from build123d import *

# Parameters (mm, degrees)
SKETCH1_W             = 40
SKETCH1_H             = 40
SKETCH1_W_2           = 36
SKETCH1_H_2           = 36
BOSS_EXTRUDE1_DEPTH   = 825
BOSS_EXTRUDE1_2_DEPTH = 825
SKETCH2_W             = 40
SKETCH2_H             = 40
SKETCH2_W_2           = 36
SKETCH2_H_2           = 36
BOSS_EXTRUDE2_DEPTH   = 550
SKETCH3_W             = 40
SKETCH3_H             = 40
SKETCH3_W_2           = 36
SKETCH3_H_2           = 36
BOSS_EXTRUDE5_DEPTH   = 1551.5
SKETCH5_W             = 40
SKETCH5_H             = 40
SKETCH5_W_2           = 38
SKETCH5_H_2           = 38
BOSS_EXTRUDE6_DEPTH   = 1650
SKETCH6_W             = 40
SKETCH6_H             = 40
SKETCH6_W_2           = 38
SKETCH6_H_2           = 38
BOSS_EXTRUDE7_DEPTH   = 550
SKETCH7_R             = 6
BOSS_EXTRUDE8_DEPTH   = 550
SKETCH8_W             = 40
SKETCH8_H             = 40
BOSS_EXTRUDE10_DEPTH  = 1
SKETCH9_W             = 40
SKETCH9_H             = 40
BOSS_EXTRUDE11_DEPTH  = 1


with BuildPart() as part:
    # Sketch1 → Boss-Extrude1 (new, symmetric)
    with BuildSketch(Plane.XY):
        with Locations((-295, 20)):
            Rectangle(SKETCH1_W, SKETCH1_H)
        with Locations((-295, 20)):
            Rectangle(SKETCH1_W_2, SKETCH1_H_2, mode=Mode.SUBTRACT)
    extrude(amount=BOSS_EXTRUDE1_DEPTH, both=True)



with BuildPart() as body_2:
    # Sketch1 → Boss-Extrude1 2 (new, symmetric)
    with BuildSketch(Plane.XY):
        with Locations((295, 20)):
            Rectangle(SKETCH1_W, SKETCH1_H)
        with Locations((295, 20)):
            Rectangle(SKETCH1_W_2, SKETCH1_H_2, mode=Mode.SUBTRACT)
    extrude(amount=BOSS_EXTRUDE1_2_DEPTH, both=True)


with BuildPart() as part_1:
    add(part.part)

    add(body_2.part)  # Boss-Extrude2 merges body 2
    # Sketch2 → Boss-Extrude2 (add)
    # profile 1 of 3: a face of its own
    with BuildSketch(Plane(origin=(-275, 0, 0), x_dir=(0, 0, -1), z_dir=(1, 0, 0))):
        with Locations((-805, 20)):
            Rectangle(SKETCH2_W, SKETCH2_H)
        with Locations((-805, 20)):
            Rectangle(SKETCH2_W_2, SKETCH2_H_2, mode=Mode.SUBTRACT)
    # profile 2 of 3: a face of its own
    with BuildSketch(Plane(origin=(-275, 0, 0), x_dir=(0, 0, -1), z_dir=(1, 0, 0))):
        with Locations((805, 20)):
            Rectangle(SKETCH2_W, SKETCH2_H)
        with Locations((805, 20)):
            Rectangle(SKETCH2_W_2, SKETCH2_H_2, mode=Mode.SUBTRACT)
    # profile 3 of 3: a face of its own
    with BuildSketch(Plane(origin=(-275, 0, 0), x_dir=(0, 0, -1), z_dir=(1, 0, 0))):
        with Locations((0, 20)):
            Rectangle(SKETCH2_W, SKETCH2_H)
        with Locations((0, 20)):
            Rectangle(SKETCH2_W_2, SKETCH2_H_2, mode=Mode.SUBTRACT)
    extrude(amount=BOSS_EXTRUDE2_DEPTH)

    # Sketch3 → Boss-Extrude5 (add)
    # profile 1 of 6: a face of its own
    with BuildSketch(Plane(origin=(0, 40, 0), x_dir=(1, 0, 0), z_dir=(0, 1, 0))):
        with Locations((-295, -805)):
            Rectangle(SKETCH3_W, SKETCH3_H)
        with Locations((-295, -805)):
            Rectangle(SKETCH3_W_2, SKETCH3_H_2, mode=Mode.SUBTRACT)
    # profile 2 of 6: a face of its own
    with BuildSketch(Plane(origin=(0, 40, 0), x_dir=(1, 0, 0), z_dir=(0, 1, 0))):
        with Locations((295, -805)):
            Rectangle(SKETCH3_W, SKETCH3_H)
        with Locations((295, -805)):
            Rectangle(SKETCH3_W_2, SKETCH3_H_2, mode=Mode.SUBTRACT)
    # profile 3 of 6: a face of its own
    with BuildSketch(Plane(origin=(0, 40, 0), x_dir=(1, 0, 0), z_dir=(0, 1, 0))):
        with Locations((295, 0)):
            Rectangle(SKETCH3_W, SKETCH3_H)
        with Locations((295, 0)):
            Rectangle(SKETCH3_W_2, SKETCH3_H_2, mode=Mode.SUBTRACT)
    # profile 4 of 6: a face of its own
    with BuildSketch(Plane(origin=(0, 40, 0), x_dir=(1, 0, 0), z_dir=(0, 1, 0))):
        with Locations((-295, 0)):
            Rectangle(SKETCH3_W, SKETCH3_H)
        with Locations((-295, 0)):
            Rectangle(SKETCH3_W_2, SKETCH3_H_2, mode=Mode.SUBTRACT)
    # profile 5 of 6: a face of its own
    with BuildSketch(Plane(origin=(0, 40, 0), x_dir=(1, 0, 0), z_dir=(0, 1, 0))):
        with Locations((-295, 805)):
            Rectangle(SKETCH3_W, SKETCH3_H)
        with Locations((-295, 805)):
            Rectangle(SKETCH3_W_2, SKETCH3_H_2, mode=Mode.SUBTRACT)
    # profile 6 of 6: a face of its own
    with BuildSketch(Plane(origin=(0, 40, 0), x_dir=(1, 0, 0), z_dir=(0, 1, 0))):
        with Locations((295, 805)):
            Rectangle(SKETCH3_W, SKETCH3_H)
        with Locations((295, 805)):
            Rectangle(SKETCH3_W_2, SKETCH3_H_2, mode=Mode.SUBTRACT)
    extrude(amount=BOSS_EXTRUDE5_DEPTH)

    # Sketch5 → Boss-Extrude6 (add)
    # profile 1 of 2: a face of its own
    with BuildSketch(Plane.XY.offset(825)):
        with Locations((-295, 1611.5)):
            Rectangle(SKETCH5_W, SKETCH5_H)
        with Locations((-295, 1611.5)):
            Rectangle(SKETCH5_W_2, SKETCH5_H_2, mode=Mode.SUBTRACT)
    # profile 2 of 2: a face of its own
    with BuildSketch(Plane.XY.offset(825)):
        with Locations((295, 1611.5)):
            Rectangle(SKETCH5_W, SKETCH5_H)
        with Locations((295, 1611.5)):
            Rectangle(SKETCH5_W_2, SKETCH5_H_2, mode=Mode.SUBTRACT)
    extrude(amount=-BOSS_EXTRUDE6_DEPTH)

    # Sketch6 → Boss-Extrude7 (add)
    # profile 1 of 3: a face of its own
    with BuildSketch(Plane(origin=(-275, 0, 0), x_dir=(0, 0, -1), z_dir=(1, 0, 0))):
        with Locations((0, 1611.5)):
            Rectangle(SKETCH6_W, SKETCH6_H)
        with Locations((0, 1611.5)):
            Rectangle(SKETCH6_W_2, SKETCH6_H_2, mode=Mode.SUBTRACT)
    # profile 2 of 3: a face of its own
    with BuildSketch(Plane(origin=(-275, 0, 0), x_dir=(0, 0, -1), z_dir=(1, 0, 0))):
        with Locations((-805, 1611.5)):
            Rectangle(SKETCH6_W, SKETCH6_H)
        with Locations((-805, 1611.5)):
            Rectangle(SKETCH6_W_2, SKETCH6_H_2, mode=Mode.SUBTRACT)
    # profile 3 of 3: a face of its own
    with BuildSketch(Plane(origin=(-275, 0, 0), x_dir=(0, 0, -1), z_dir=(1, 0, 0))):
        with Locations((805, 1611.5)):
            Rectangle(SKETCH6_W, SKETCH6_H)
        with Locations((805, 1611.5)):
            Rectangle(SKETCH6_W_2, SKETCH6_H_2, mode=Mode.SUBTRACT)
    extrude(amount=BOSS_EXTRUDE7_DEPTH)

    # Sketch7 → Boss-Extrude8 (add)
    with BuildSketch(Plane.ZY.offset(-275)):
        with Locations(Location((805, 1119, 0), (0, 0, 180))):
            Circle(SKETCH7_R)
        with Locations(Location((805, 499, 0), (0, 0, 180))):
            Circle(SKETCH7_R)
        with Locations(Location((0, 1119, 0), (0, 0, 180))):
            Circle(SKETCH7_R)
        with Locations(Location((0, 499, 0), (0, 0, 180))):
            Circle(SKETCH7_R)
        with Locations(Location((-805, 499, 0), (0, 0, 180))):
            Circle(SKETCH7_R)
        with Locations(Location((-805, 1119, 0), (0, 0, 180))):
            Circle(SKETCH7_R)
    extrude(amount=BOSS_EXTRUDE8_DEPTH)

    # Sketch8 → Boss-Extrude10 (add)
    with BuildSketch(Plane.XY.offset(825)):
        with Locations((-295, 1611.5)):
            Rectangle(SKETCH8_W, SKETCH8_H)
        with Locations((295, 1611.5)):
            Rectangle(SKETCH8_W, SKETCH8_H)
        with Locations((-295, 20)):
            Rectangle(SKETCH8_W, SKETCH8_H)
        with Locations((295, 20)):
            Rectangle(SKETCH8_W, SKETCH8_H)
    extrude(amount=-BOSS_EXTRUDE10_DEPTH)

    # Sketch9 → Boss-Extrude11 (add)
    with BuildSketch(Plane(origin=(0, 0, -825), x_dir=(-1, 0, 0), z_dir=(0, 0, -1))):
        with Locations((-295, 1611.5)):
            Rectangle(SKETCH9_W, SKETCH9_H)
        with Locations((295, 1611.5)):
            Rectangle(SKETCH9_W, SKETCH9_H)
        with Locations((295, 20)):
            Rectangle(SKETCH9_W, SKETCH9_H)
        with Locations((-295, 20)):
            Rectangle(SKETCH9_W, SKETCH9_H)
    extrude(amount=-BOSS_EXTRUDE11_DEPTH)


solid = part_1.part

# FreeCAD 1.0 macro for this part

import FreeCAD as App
import Part
import Sketcher
from FreeCAD import Vector
Q = App.Units.Quantity

doc = App.newDocument("Part")
params = doc.addObject("Spreadsheet::Sheet", "Params")
for row, (alias, value) in enumerate([
    ("sketch1_width", "40 mm"),
    ("sketch1_width2", "36 mm"),
    ("pad1_length", "1650 mm"),
    ("sketch2_width", "40 mm"),
    ("sketch2_width2", "36 mm"),
    ("pad2_length", "1650 mm"),
    ("sketch3_width", "40 mm"),
    ("sketch3_width2", "36 mm"),
    ("pad3_length", "550 mm"),
    ("sketch4_width", "40 mm"),
    ("sketch4_width2", "36 mm"),
    ("pad4_length", "1551.5 mm"),
    ("sketch5_width", "40 mm"),
    ("sketch5_width2", "38 mm"),
    ("pad5_length", "1650 mm"),
    ("sketch6_width", "40 mm"),
    ("sketch6_width2", "38 mm"),
    ("pad6_length", "550 mm"),
    ("sketch7_diameter", "12 mm"),
    ("pad7_length", "550 mm"),
    ("sketch8_width", "40 mm"),
    ("pad8_length", "1 mm"),
    ("sketch9_width", "40 mm"),
    ("pad9_length", "1 mm"),
], start=1):
    params.set(f"A{row}", alias)
    params.set(f"B{row}", "=" + value)
    params.setAlias(f"B{row}", alias)

body = doc.addObject("PartDesign::Body", "Body")

# Sketch on XY plane
sketch1 = doc.addObject("Sketcher::SketchObject", "Sketch")
body.addObject(sketch1)
sketch1.AttachmentSupport = (doc.XY_Plane, [""])
sketch1.MapMode = "FlatFace"
sketch1.addGeometry([
    Part.LineSegment(Vector(-315, 40, 0), Vector(-315, 0, 0)),  # 0
    Part.LineSegment(Vector(-315, 0, 0), Vector(-275, 0, 0)),  # 1
    Part.LineSegment(Vector(-275, 0, 0), Vector(-275, 40, 0)),  # 2
    Part.LineSegment(Vector(-275, 40, 0), Vector(-315, 40, 0)),  # 3
    Part.LineSegment(Vector(-277, 2, 0), Vector(-313, 2, 0)),  # 4
    Part.LineSegment(Vector(-313, 2, 0), Vector(-313, 38, 0)),  # 5
    Part.LineSegment(Vector(-313, 38, 0), Vector(-277, 38, 0)),  # 6
    Part.LineSegment(Vector(-277, 38, 0), Vector(-277, 2, 0)),  # 7
], False)
sketch1.addConstraint([
    Sketcher.Constraint("Coincident", 0, 2, 1, 1),
    Sketcher.Constraint("Coincident", 1, 2, 2, 1),
    Sketcher.Constraint("Coincident", 2, 2, 3, 1),
    Sketcher.Constraint("Coincident", 3, 2, 0, 1),
    Sketcher.Constraint("Coincident", 4, 2, 5, 1),
    Sketcher.Constraint("Coincident", 5, 2, 6, 1),
    Sketcher.Constraint("Coincident", 6, 2, 7, 1),
    Sketcher.Constraint("Coincident", 7, 2, 4, 1),
    Sketcher.Constraint("Vertical", 0),
    Sketcher.Constraint("Horizontal", 1),
    Sketcher.Constraint("Vertical", 2),
    Sketcher.Constraint("Horizontal", 3),
    Sketcher.Constraint("Horizontal", 4),
    Sketcher.Constraint("Vertical", 5),
    Sketcher.Constraint("Horizontal", 6),
    Sketcher.Constraint("Vertical", 7),
    Sketcher.Constraint("PointOnObject", 0, 2, -1),
    Sketcher.Constraint("Equal", 3, 0),
    Sketcher.Constraint("Equal", 6, 5),
    Sketcher.Constraint("DistanceX", 1, 1, 1, 2, Q("40 mm")),
    Sketcher.Constraint("DistanceX", 4, 2, 4, 1, Q("36 mm")),
    Sketcher.Constraint("DistanceX", 0, 2, -1, 1, Q("315 mm")),
    Sketcher.Constraint("DistanceX", 4, 2, -1, 1, Q("313 mm")),
    Sketcher.Constraint("DistanceY", -1, 1, 4, 2, Q("2 mm")),
])
sketch1.setExpression("Constraints[19]", "Params.sketch1_width")
sketch1.setExpression("Constraints[20]", "Params.sketch1_width2")
pad1 = doc.addObject("PartDesign::Pad", "Pad")
body.addObject(pad1)
pad1.Profile = sketch1
pad1.setExpression("Length", "Params.pad1_length")
pad1.Midplane = True
body2 = doc.addObject("PartDesign::Body", "Body001")

# Sketch on XY plane
sketch2 = doc.addObject("Sketcher::SketchObject", "Sketch001")
body2.addObject(sketch2)
sketch2.AttachmentSupport = (doc.getObject("XY_Plane001"), [""])
sketch2.MapMode = "FlatFace"
sketch2.addGeometry([
    Part.LineSegment(Vector(275, 40, 0), Vector(275, 0, 0)),  # 0
    Part.LineSegment(Vector(275, 0, 0), Vector(315, 0, 0)),  # 1
    Part.LineSegment(Vector(315, 0, 0), Vector(315, 40, 0)),  # 2
    Part.LineSegment(Vector(315, 40, 0), Vector(275, 40, 0)),  # 3
    Part.LineSegment(Vector(313, 2, 0), Vector(277, 2, 0)),  # 4
    Part.LineSegment(Vector(277, 2, 0), Vector(277, 38, 0)),  # 5
    Part.LineSegment(Vector(277, 38, 0), Vector(313, 38, 0)),  # 6
    Part.LineSegment(Vector(313, 38, 0), Vector(313, 2, 0)),  # 7
], False)
sketch2.addConstraint([
    Sketcher.Constraint("Coincident", 0, 2, 1, 1),
    Sketcher.Constraint("Coincident", 1, 2, 2, 1),
    Sketcher.Constraint("Coincident", 2, 2, 3, 1),
    Sketcher.Constraint("Coincident", 3, 2, 0, 1),
    Sketcher.Constraint("Coincident", 4, 2, 5, 1),
    Sketcher.Constraint("Coincident", 5, 2, 6, 1),
    Sketcher.Constraint("Coincident", 6, 2, 7, 1),
    Sketcher.Constraint("Coincident", 7, 2, 4, 1),
    Sketcher.Constraint("Vertical", 0),
    Sketcher.Constraint("Horizontal", 1),
    Sketcher.Constraint("Vertical", 2),
    Sketcher.Constraint("Horizontal", 3),
    Sketcher.Constraint("Horizontal", 4),
    Sketcher.Constraint("Vertical", 5),
    Sketcher.Constraint("Horizontal", 6),
    Sketcher.Constraint("Vertical", 7),
    Sketcher.Constraint("PointOnObject", 0, 2, -1),
    Sketcher.Constraint("Equal", 3, 0),
    Sketcher.Constraint("Equal", 6, 5),
    Sketcher.Constraint("DistanceX", 1, 1, 1, 2, Q("40 mm")),
    Sketcher.Constraint("DistanceX", 4, 2, 4, 1, Q("36 mm")),
    Sketcher.Constraint("DistanceX", -1, 1, 0, 2, Q("275 mm")),
    Sketcher.Constraint("DistanceX", -1, 1, 4, 2, Q("277 mm")),
    Sketcher.Constraint("DistanceY", -1, 1, 4, 2, Q("2 mm")),
])
sketch2.setExpression("Constraints[19]", "Params.sketch2_width")
sketch2.setExpression("Constraints[20]", "Params.sketch2_width2")
pad2 = doc.addObject("PartDesign::Pad", "Pad001")
body2.addObject(pad2)
pad2.Profile = sketch2
pad2.setExpression("Length", "Params.pad2_length")
pad2.Midplane = True
body.AllowCompound = True
doc.recompute()

boolean = doc.addObject("PartDesign::Boolean", "Boolean")
body.addObject(boolean)
boolean.Type = "Fuse"
boolean.addObjects([body2])

# Sketch on YZ plane
sketch3 = doc.addObject("Sketcher::SketchObject", "Sketch002")
body.addObject(sketch3)
sketch3.AttachmentSupport = (doc.YZ_Plane, [""])
sketch3.MapMode = "FlatFace"
sketch3.AttachmentOffset = App.Placement(Vector(0, 0, -275), App.Rotation())
sketch3.addGeometry([
    Part.LineSegment(Vector(40, 825, 0), Vector(0, 825, 0)),  # 0
    Part.LineSegment(Vector(0, 825, 0), Vector(0, 785, 0)),  # 1
    Part.LineSegment(Vector(0, 785, 0), Vector(40, 785, 0)),  # 2
    Part.LineSegment(Vector(40, 785, 0), Vector(40, 825, 0)),  # 3
    Part.LineSegment(Vector(2, 787, 0), Vector(2, 823, 0)),  # 4
    Part.LineSegment(Vector(2, 823, 0), Vector(38, 823, 0)),  # 5
    Part.LineSegment(Vector(38, 823, 0), Vector(38, 787, 0)),  # 6
    Part.LineSegment(Vector(38, 787, 0), Vector(2, 787, 0)),  # 7
    Part.LineSegment(Vector(40, -785, 0), Vector(0, -785, 0)),  # 8
    Part.LineSegment(Vector(0, -785, 0), Vector(0, -825, 0)),  # 9
    Part.LineSegment(Vector(0, -825, 0), Vector(40, -825, 0)),  # 10
    Part.LineSegment(Vector(40, -825, 0), Vector(40, -785, 0)),  # 11
    Part.LineSegment(Vector(2, -823, 0), Vector(2, -787, 0)),  # 12
    Part.LineSegment(Vector(2, -787, 0), Vector(38, -787, 0)),  # 13
    Part.LineSegment(Vector(38, -787, 0), Vector(38, -823, 0)),  # 14
    Part.LineSegment(Vector(38, -823, 0), Vector(2, -823, 0)),  # 15
    Part.LineSegment(Vector(40, 20, 0), Vector(0, 20, 0)),  # 16
    Part.LineSegment(Vector(0, 20, 0), Vector(0, -20, 0)),  # 17
    Part.LineSegment(Vector(0, -20, 0), Vector(40, -20, 0)),  # 18
    Part.LineSegment(Vector(40, -20, 0), Vector(40, 20, 0)),  # 19
    Part.LineSegment(Vector(2, -18, 0), Vector(2, 18, 0)),  # 20
    Part.LineSegment(Vector(2, 18, 0), Vector(38, 18, 0)),  # 21
    Part.LineSegment(Vector(38, 18, 0), Vector(38, -18, 0)),  # 22
    Part.LineSegment(Vector(38, -18, 0), Vector(2, -18, 0)),  # 23
], False)
sketch3.addConstraint([
    Sketcher.Constraint("Coincident", 0, 2, 1, 1),
    Sketcher.Constraint("Coincident", 1, 2, 2, 1),
    Sketcher.Constraint("Coincident", 2, 2, 3, 1),
    Sketcher.Constraint("Coincident", 3, 2, 0, 1),
    Sketcher.Constraint("Coincident", 4, 2, 5, 1),
    Sketcher.Constraint("Coincident", 5, 2, 6, 1),
    Sketcher.Constraint("Coincident", 6, 2, 7, 1),
    Sketcher.Constraint("Coincident", 7, 2, 4, 1),
    Sketcher.Constraint("Coincident", 8, 2, 9, 1),
    Sketcher.Constraint("Coincident", 9, 2, 10, 1),
    Sketcher.Constraint("Coincident", 10, 2, 11, 1),
    Sketcher.Constraint("Coincident", 11, 2, 8, 1),
    Sketcher.Constraint("Coincident", 12, 2, 13, 1),
    Sketcher.Constraint("Coincident", 13, 2, 14, 1),
    Sketcher.Constraint("Coincident", 14, 2, 15, 1),
    Sketcher.Constraint("Coincident", 15, 2, 12, 1),
    Sketcher.Constraint("Coincident", 16, 2, 17, 1),
    Sketcher.Constraint("Coincident", 17, 2, 18, 1),
    Sketcher.Constraint("Coincident", 18, 2, 19, 1),
    Sketcher.Constraint("Coincident", 19, 2, 16, 1),
    Sketcher.Constraint("Coincident", 20, 2, 21, 1),
    Sketcher.Constraint("Coincident", 21, 2, 22, 1),
    Sketcher.Constraint("Coincident", 22, 2, 23, 1),
    Sketcher.Constraint("Coincident", 23, 2, 20, 1),
    Sketcher.Constraint("Horizontal", 0),
    Sketcher.Constraint("Vertical", 1),
    Sketcher.Constraint("Horizontal", 2),
    Sketcher.Constraint("Vertical", 3),
    Sketcher.Constraint("Vertical", 4),
    Sketcher.Constraint("Horizontal", 5),
    Sketcher.Constraint("Vertical", 6),
    Sketcher.Constraint("Horizontal", 7),
    Sketcher.Constraint("Horizontal", 8),
    Sketcher.Constraint("Vertical", 9),
    Sketcher.Constraint("Horizontal", 10),
    Sketcher.Constraint("Vertical", 11),
    Sketcher.Constraint("Vertical", 12),
    Sketcher.Constraint("Horizontal", 13),
    Sketcher.Constraint("Vertical", 14),
    Sketcher.Constraint("Horizontal", 15),
    Sketcher.Constraint("Horizontal", 16),
    Sketcher.Constraint("Vertical", 17),
    Sketcher.Constraint("Horizontal", 18),
    Sketcher.Constraint("Vertical", 19),
    Sketcher.Constraint("Vertical", 20),
    Sketcher.Constraint("Horizontal", 21),
    Sketcher.Constraint("Vertical", 22),
    Sketcher.Constraint("Horizontal", 23),
    Sketcher.Constraint("Symmetric", 1, 2, 8, 2, -1, 1),
    Sketcher.Constraint("Symmetric", 16, 2, 17, 2, -1, 1),
    Sketcher.Constraint("Symmetric", 0, 2, 9, 2, -1),
    Sketcher.Constraint("Symmetric", 7, 2, 12, 2, -1),
    Sketcher.Constraint("Symmetric", 5, 2, 14, 2, -1),
    Sketcher.Constraint("Vertical", 3, 2, 10, 2),
    Sketcher.Constraint("Vertical", 11, 2, 18, 2),
    Sketcher.Constraint("Vertical", 15, 2, 20, 2),
    Sketcher.Constraint("Vertical", 14, 2, 21, 2),
    Sketcher.Constraint("Equal", 18, 1),
    Sketcher.Constraint("Equal", 23, 4),
    Sketcher.Constraint("Equal", 11, 17),
    Sketcher.Constraint("Equal", 14, 20),
    Sketcher.Constraint("DistanceX", 0, 2, 0, 1, Q("40 mm")),
    Sketcher.Constraint("DistanceX", 5, 1, 5, 2, Q("36 mm")),
    Sketcher.Constraint("DistanceY", -1, 1, 0, 2, Q("825 mm")),
    Sketcher.Constraint("DistanceX", -1, 1, 4, 2, Q("2 mm")),
    Sketcher.Constraint("DistanceY", -1, 1, 4, 2, Q("823 mm")),
    Sketcher.Constraint("DistanceY", -1, 1, 20, 2, Q("18 mm")),
])
sketch3.setExpression("Constraints[61]", "Params.sketch3_width")
sketch3.setExpression("Constraints[62]", "Params.sketch3_width2")
pad3 = doc.addObject("PartDesign::Pad", "Pad002")
body.addObject(pad3)
pad3.Profile = sketch3
pad3.setExpression("Length", "Params.pad3_length")

# Sketch on XZ plane
sketch4 = doc.addObject("Sketcher::SketchObject", "Sketch003")
body.addObject(sketch4)
sketch4.AttachmentSupport = (doc.XZ_Plane, [""])
sketch4.MapMode = "FlatFace"
sketch4.AttachmentOffset = App.Placement(Vector(0, 0, -40), App.Rotation())
sketch4.addGeometry([
    Part.LineSegment(Vector(-315, 785, 0), Vector(-315, 825, 0)),  # 0
    Part.LineSegment(Vector(-315, 825, 0), Vector(-275, 825, 0)),  # 1
    Part.LineSegment(Vector(-275, 825, 0), Vector(-275, 785, 0)),  # 2
    Part.LineSegment(Vector(-275, 785, 0), Vector(-315, 785, 0)),  # 3
    Part.LineSegment(Vector(-277, 823, 0), Vector(-313, 823, 0)),  # 4
    Part.LineSegment(Vector(-313, 823, 0), Vector(-313, 787, 0)),  # 5
    Part.LineSegment(Vector(-313, 787, 0), Vector(-277, 787, 0)),  # 6
    Part.LineSegment(Vector(-277, 787, 0), Vector(-277, 823, 0)),  # 7
    Part.LineSegment(Vector(275, 785, 0), Vector(275, 825, 0)),  # 8
    Part.LineSegment(Vector(275, 825, 0), Vector(315, 825, 0)),  # 9
    Part.LineSegment(Vector(315, 825, 0), Vector(315, 785, 0)),  # 10
    Part.LineSegment(Vector(315, 785, 0), Vector(275, 785, 0)),  # 11
    Part.LineSegment(Vector(313, 823, 0), Vector(277, 823, 0)),  # 12
    Part.LineSegment(Vector(277, 823, 0), Vector(277, 787, 0)),  # 13
    Part.LineSegment(Vector(277, 787, 0), Vector(313, 787, 0)),  # 14
    Part.LineSegment(Vector(313, 787, 0), Vector(313, 823, 0)),  # 15
    Part.LineSegment(Vector(275, -20, 0), Vector(275, 20, 0)),  # 16
    Part.LineSegment(Vector(275, 20, 0), Vector(315, 20, 0)),  # 17
    Part.LineSegment(Vector(315, 20, 0), Vector(315, -20, 0)),  # 18
    Part.LineSegment(Vector(315, -20, 0), Vector(275, -20, 0)),  # 19
    Part.LineSegment(Vector(313, 18, 0), Vector(277, 18, 0)),  # 20
    Part.LineSegment(Vector(277, 18, 0), Vector(277, -18, 0)),  # 21
    Part.LineSegment(Vector(277, -18, 0), Vector(313, -18, 0)),  # 22
    Part.LineSegment(Vector(313, -18, 0), Vector(313, 18, 0)),  # 23
    Part.LineSegment(Vector(-315, -20, 0), Vector(-315, 20, 0)),  # 24
    Part.LineSegment(Vector(-315, 20, 0), Vector(-275, 20, 0)),  # 25
    Part.LineSegment(Vector(-275, 20, 0), Vector(-275, -20, 0)),  # 26
    Part.LineSegment(Vector(-275, -20, 0), Vector(-315, -20, 0)),  # 27
    Part.LineSegment(Vector(-277, 18, 0), Vector(-313, 18, 0)),  # 28
    Part.LineSegment(Vector(-313, 18, 0), Vector(-313, -18, 0)),  # 29
    Part.LineSegment(Vector(-313, -18, 0), Vector(-277, -18, 0)),  # 30
    Part.LineSegment(Vector(-277, -18, 0), Vector(-277, 18, 0)),  # 31
    Part.LineSegment(Vector(-315, -825, 0), Vector(-315, -785, 0)),  # 32
    Part.LineSegment(Vector(-315, -785, 0), Vector(-275, -785, 0)),  # 33
    Part.LineSegment(Vector(-275, -785, 0), Vector(-275, -825, 0)),  # 34
    Part.LineSegment(Vector(-275, -825, 0), Vector(-315, -825, 0)),  # 35
    Part.LineSegment(Vector(-277, -787, 0), Vector(-313, -787, 0)),  # 36
    Part.LineSegment(Vector(-313, -787, 0), Vector(-313, -823, 0)),  # 37
    Part.LineSegment(Vector(-313, -823, 0), Vector(-277, -823, 0)),  # 38
    Part.LineSegment(Vector(-277, -823, 0), Vector(-277, -787, 0)),  # 39
    Part.LineSegment(Vector(275, -825, 0), Vector(275, -785, 0)),  # 40
    Part.LineSegment(Vector(275, -785, 0), Vector(315, -785, 0)),  # 41
    Part.LineSegment(Vector(315, -785, 0), Vector(315, -825, 0)),  # 42
    Part.LineSegment(Vector(315, -825, 0), Vector(275, -825, 0)),  # 43
    Part.LineSegment(Vector(313, -787, 0), Vector(277, -787, 0)),  # 44
    Part.LineSegment(Vector(277, -787, 0), Vector(277, -823, 0)),  # 45
    Part.LineSegment(Vector(277, -823, 0), Vector(313, -823, 0)),  # 46
    Part.LineSegment(Vector(313, -823, 0), Vector(313, -787, 0)),  # 47
], False)
sketch4.addConstraint([
    Sketcher.Constraint("Coincident", 0, 2, 1, 1),
    Sketcher.Constraint("Coincident", 1, 2, 2, 1),
    Sketcher.Constraint("Coincident", 2, 2, 3, 1),
    Sketcher.Constraint("Coincident", 3, 2, 0, 1),
    Sketcher.Constraint("Coincident", 4, 2, 5, 1),
    Sketcher.Constraint("Coincident", 5, 2, 6, 1),
    Sketcher.Constraint("Coincident", 6, 2, 7, 1),
    Sketcher.Constraint("Coincident", 7, 2, 4, 1),
    Sketcher.Constraint("Coincident", 8, 2, 9, 1),
    Sketcher.Constraint("Coincident", 9, 2, 10, 1),
    Sketcher.Constraint("Coincident", 10, 2, 11, 1),
    Sketcher.Constraint("Coincident", 11, 2, 8, 1),
    Sketcher.Constraint("Coincident", 12, 2, 13, 1),
    Sketcher.Constraint("Coincident", 13, 2, 14, 1),
    Sketcher.Constraint("Coincident", 14, 2, 15, 1),
    Sketcher.Constraint("Coincident", 15, 2, 12, 1),
    Sketcher.Constraint("Coincident", 16, 2, 17, 1),
    Sketcher.Constraint("Coincident", 17, 2, 18, 1),
    Sketcher.Constraint("Coincident", 18, 2, 19, 1),
    Sketcher.Constraint("Coincident", 19, 2, 16, 1),
    Sketcher.Constraint("Coincident", 20, 2, 21, 1),
    Sketcher.Constraint("Coincident", 21, 2, 22, 1),
    Sketcher.Constraint("Coincident", 22, 2, 23, 1),
    Sketcher.Constraint("Coincident", 23, 2, 20, 1),
    Sketcher.Constraint("Coincident", 24, 2, 25, 1),
    Sketcher.Constraint("Coincident", 25, 2, 26, 1),
    Sketcher.Constraint("Coincident", 26, 2, 27, 1),
    Sketcher.Constraint("Coincident", 27, 2, 24, 1),
    Sketcher.Constraint("Coincident", 28, 2, 29, 1),
    Sketcher.Constraint("Coincident", 29, 2, 30, 1),
    Sketcher.Constraint("Coincident", 30, 2, 31, 1),
    Sketcher.Constraint("Coincident", 31, 2, 28, 1),
    Sketcher.Constraint("Coincident", 32, 2, 33, 1),
    Sketcher.Constraint("Coincident", 33, 2, 34, 1),
    Sketcher.Constraint("Coincident", 34, 2, 35, 1),
    Sketcher.Constraint("Coincident", 35, 2, 32, 1),
    Sketcher.Constraint("Coincident", 36, 2, 37, 1),
    Sketcher.Constraint("Coincident", 37, 2, 38, 1),
    Sketcher.Constraint("Coincident", 38, 2, 39, 1),
    Sketcher.Constraint("Coincident", 39, 2, 36, 1),
    Sketcher.Constraint("Coincident", 40, 2, 41, 1),
    Sketcher.Constraint("Coincident", 41, 2, 42, 1),
    Sketcher.Constraint("Coincident", 42, 2, 43, 1),
    Sketcher.Constraint("Coincident", 43, 2, 40, 1),
    Sketcher.Constraint("Coincident", 44, 2, 45, 1),
    Sketcher.Constraint("Coincident", 45, 2, 46, 1),
    Sketcher.Constraint("Coincident", 46, 2, 47, 1),
    Sketcher.Constraint("Coincident", 47, 2, 44, 1),
    Sketcher.Constraint("Vertical", 0),
    Sketcher.Constraint("Horizontal", 1),
    Sketcher.Constraint("Vertical", 2),
    Sketcher.Constraint("Horizontal", 3),
    Sketcher.Constraint("Horizontal", 4),
    Sketcher.Constraint("Vertical", 5),
    Sketcher.Constraint("Horizontal", 6),
    Sketcher.Constraint("Vertical", 7),
    Sketcher.Constraint("Vertical", 8),
    Sketcher.Constraint("Horizontal", 9),
    Sketcher.Constraint("Vertical", 10),
    Sketcher.Constraint("Horizontal", 11),
    Sketcher.Constraint("Horizontal", 12),
    Sketcher.Constraint("Vertical", 13),
    Sketcher.Constraint("Horizontal", 14),
    Sketcher.Constraint("Vertical", 15),
    Sketcher.Constraint("Vertical", 16),
    Sketcher.Constraint("Horizontal", 17),
    Sketcher.Constraint("Vertical", 18),
    Sketcher.Constraint("Horizontal", 19),
    Sketcher.Constraint("Horizontal", 20),
    Sketcher.Constraint("Vertical", 21),
    Sketcher.Constraint("Horizontal", 22),
    Sketcher.Constraint("Vertical", 23),
    Sketcher.Constraint("Vertical", 24),
    Sketcher.Constraint("Horizontal", 25),
    Sketcher.Constraint("Vertical", 26),
    Sketcher.Constraint("Horizontal", 27),
    Sketcher.Constraint("Horizontal", 28),
    Sketcher.Constraint("Vertical", 29),
    Sketcher.Constraint("Horizontal", 30),
    Sketcher.Constraint("Vertical", 31),
    Sketcher.Constraint("Vertical", 32),
    Sketcher.Constraint("Horizontal", 33),
    Sketcher.Constraint("Vertical", 34),
    Sketcher.Constraint("Horizontal", 35),
    Sketcher.Constraint("Horizontal", 36),
    Sketcher.Constraint("Vertical", 37),
    Sketcher.Constraint("Horizontal", 38),
    Sketcher.Constraint("Vertical", 39),
    Sketcher.Constraint("Vertical", 40),
    Sketcher.Constraint("Horizontal", 41),
    Sketcher.Constraint("Vertical", 42),
    Sketcher.Constraint("Horizontal", 43),
    Sketcher.Constraint("Horizontal", 44),
    Sketcher.Constraint("Vertical", 45),
    Sketcher.Constraint("Horizontal", 46),
    Sketcher.Constraint("Vertical", 47),
    Sketcher.Constraint("Symmetric", 18, 2, 24, 2, -1, 1),
    Sketcher.Constraint("Symmetric", 16, 2, 26, 2, -1, 1),
    Sketcher.Constraint("Symmetric", 22, 2, 28, 2, -1, 1),
    Sketcher.Constraint("Symmetric", 20, 2, 30, 2, -1, 1),
    Sketcher.Constraint("Symmetric", 10, 2, 32, 2, -1, 1),
    Sketcher.Constraint("Symmetric", 8, 2, 34, 2, -1, 1),
    Sketcher.Constraint("Symmetric", 14, 2, 36, 2, -1, 1),
    Sketcher.Constraint("Symmetric", 12, 2, 38, 2, -1, 1),
    Sketcher.Constraint("Symmetric", 2, 2, 40, 2, -1, 1),
    Sketcher.Constraint("Symmetric", 0, 2, 42, 2, -1, 1),
    Sketcher.Constraint("Symmetric", 6, 2, 44, 2, -1, 1),
    Sketcher.Constraint("Symmetric", 4, 2, 46, 2, -1, 1),
    Sketcher.Constraint("Symmetric", 1, 2, 8, 2, -2),
    Sketcher.Constraint("Symmetric", 3, 2, 10, 2, -2),
    Sketcher.Constraint("Symmetric", 7, 2, 12, 2, -2),
    Sketcher.Constraint("Symmetric", 5, 2, 14, 2, -2),
    Sketcher.Constraint("Horizontal", 17, 2, 24, 2),
    Sketcher.Constraint("Horizontal", 23, 2, 28, 2),
    Sketcher.Constraint("Vertical", 11, 2, 16, 2),
    Sketcher.Constraint("Vertical", 10, 2, 17, 2),
    Sketcher.Constraint("Vertical", 13, 2, 20, 2),
    Sketcher.Constraint("Vertical", 15, 2, 22, 2),
    Sketcher.Constraint("Equal", 43, 0),
    Sketcher.Constraint("Equal", 46, 5),
    Sketcher.Constraint("Equal", 10, 16),
    Sketcher.Constraint("Equal", 15, 21),
    Sketcher.Constraint("DistanceX", 1, 1, 1, 2, Q("40 mm")),
    Sketcher.Constraint("DistanceX", 4, 2, 4, 1, Q("36 mm")),
    Sketcher.Constraint("DistanceX", 0, 2, -1, 1, Q("315 mm")),
    Sketcher.Constraint("DistanceY", -1, 1, 0, 2, Q("825 mm")),
    Sketcher.Constraint("DistanceX", 4, 2, -1, 1, Q("313 mm")),
    Sketcher.Constraint("DistanceY", -1, 1, 4, 2, Q("823 mm")),
])
sketch4.setExpression("Constraints[122]", "Params.sketch4_width")
sketch4.setExpression("Constraints[123]", "Params.sketch4_width2")
pad4 = doc.addObject("PartDesign::Pad", "Pad003")
body.addObject(pad4)
pad4.Profile = sketch4
pad4.setExpression("Length", "Params.pad4_length")
pad4.Reversed = True

# Sketch on XY plane
sketch5 = doc.addObject("Sketcher::SketchObject", "Sketch004")
body.addObject(sketch5)
sketch5.AttachmentSupport = (doc.XY_Plane, [""])
sketch5.MapMode = "FlatFace"
sketch5.AttachmentOffset = App.Placement(Vector(0, 0, 825), App.Rotation())
sketch5.addGeometry([
    Part.LineSegment(Vector(-315, 1631.5, 0), Vector(-315, 1591.5, 0)),  # 0
    Part.LineSegment(Vector(-315, 1591.5, 0), Vector(-275, 1591.5, 0)),  # 1
    Part.LineSegment(Vector(-275, 1591.5, 0), Vector(-275, 1631.5, 0)),  # 2
    Part.LineSegment(Vector(-275, 1631.5, 0), Vector(-315, 1631.5, 0)),  # 3
    Part.LineSegment(Vector(-276, 1592.5, 0), Vector(-314, 1592.5, 0)),  # 4
    Part.LineSegment(Vector(-314, 1592.5, 0), Vector(-314, 1630.5, 0)),  # 5
    Part.LineSegment(Vector(-314, 1630.5, 0), Vector(-276, 1630.5, 0)),  # 6
    Part.LineSegment(Vector(-276, 1630.5, 0), Vector(-276, 1592.5, 0)),  # 7
    Part.LineSegment(Vector(275, 1631.5, 0), Vector(275, 1591.5, 0)),  # 8
    Part.LineSegment(Vector(275, 1591.5, 0), Vector(315, 1591.5, 0)),  # 9
    Part.LineSegment(Vector(315, 1591.5, 0), Vector(315, 1631.5, 0)),  # 10
    Part.LineSegment(Vector(315, 1631.5, 0), Vector(275, 1631.5, 0)),  # 11
    Part.LineSegment(Vector(314, 1592.5, 0), Vector(276, 1592.5, 0)),  # 12
    Part.LineSegment(Vector(276, 1592.5, 0), Vector(276, 1630.5, 0)),  # 13
    Part.LineSegment(Vector(276, 1630.5, 0), Vector(314, 1630.5, 0)),  # 14
    Part.LineSegment(Vector(314, 1630.5, 0), Vector(314, 1592.5, 0)),  # 15
], False)
sketch5.addConstraint([
    Sketcher.Constraint("Coincident", 0, 2, 1, 1),
    Sketcher.Constraint("Coincident", 1, 2, 2, 1),
    Sketcher.Constraint("Coincident", 2, 2, 3, 1),
    Sketcher.Constraint("Coincident", 3, 2, 0, 1),
    Sketcher.Constraint("Coincident", 4, 2, 5, 1),
    Sketcher.Constraint("Coincident", 5, 2, 6, 1),
    Sketcher.Constraint("Coincident", 6, 2, 7, 1),
    Sketcher.Constraint("Coincident", 7, 2, 4, 1),
    Sketcher.Constraint("Coincident", 8, 2, 9, 1),
    Sketcher.Constraint("Coincident", 9, 2, 10, 1),
    Sketcher.Constraint("Coincident", 10, 2, 11, 1),
    Sketcher.Constraint("Coincident", 11, 2, 8, 1),
    Sketcher.Constraint("Coincident", 12, 2, 13, 1),
    Sketcher.Constraint("Coincident", 13, 2, 14, 1),
    Sketcher.Constraint("Coincident", 14, 2, 15, 1),
    Sketcher.Constraint("Coincident", 15, 2, 12, 1),
    Sketcher.Constraint("Vertical", 0),
    Sketcher.Constraint("Horizontal", 1),
    Sketcher.Constraint("Vertical", 2),
    Sketcher.Constraint("Horizontal", 3),
    Sketcher.Constraint("Horizontal", 4),
    Sketcher.Constraint("Vertical", 5),
    Sketcher.Constraint("Horizontal", 6),
    Sketcher.Constraint("Vertical", 7),
    Sketcher.Constraint("Vertical", 8),
    Sketcher.Constraint("Horizontal", 9),
    Sketcher.Constraint("Vertical", 10),
    Sketcher.Constraint("Horizontal", 11),
    Sketcher.Constraint("Horizontal", 12),
    Sketcher.Constraint("Vertical", 13),
    Sketcher.Constraint("Horizontal", 14),
    Sketcher.Constraint("Vertical", 15),
    Sketcher.Constraint("Symmetric", 1, 2, 8, 2, -2),
    Sketcher.Constraint("Symmetric", 3, 2, 10, 2, -2),
    Sketcher.Constraint("Symmetric", 7, 2, 12, 2, -2),
    Sketcher.Constraint("Symmetric", 5, 2, 14, 2, -2),
    Sketcher.Constraint("Equal", 11, 0),
    Sketcher.Constraint("Equal", 14, 5),
    Sketcher.Constraint("DistanceX", 1, 1, 1, 2, Q("40 mm")),
    Sketcher.Constraint("DistanceX", 4, 2, 4, 1, Q("38 mm")),
    Sketcher.Constraint("DistanceX", 0, 2, -1, 1, Q("315 mm")),
    Sketcher.Constraint("DistanceX", 4, 2, -1, 1, Q("314 mm")),
    Sketcher.Constraint("DistanceY", 0, 2, 4, 2, Q("1 mm")),
    Sketcher.Constraint("DistanceY", -1, 1, 0, 2, Q("1591.5 mm")),
])
sketch5.setExpression("Constraints[38]", "Params.sketch5_width")
sketch5.setExpression("Constraints[39]", "Params.sketch5_width2")
pad5 = doc.addObject("PartDesign::Pad", "Pad004")
body.addObject(pad5)
pad5.Profile = sketch5
pad5.setExpression("Length", "Params.pad5_length")
pad5.Reversed = True

# Sketch on YZ plane
sketch6 = doc.addObject("Sketcher::SketchObject", "Sketch005")
body.addObject(sketch6)
sketch6.AttachmentSupport = (doc.YZ_Plane, [""])
sketch6.MapMode = "FlatFace"
sketch6.AttachmentOffset = App.Placement(Vector(0, 0, -275), App.Rotation())
sketch6.addGeometry([
    Part.LineSegment(Vector(1631.5, 20, 0), Vector(1591.5, 20, 0)),  # 0
    Part.LineSegment(Vector(1591.5, 20, 0), Vector(1591.5, -20, 0)),  # 1
    Part.LineSegment(Vector(1591.5, -20, 0), Vector(1631.5, -20, 0)),  # 2
    Part.LineSegment(Vector(1631.5, -20, 0), Vector(1631.5, 20, 0)),  # 3
    Part.LineSegment(Vector(1592.5, -19, 0), Vector(1592.5, 19, 0)),  # 4
    Part.LineSegment(Vector(1592.5, 19, 0), Vector(1630.5, 19, 0)),  # 5
    Part.LineSegment(Vector(1630.5, 19, 0), Vector(1630.5, -19, 0)),  # 6
    Part.LineSegment(Vector(1630.5, -19, 0), Vector(1592.5, -19, 0)),  # 7
    Part.LineSegment(Vector(1631.5, 825, 0), Vector(1591.5, 825, 0)),  # 8
    Part.LineSegment(Vector(1591.5, 825, 0), Vector(1591.5, 785, 0)),  # 9
    Part.LineSegment(Vector(1591.5, 785, 0), Vector(1631.5, 785, 0)),  # 10
    Part.LineSegment(Vector(1631.5, 785, 0), Vector(1631.5, 825, 0)),  # 11
    Part.LineSegment(Vector(1592.5, 786, 0), Vector(1592.5, 824, 0)),  # 12
    Part.LineSegment(Vector(1592.5, 824, 0), Vector(1630.5, 824, 0)),  # 13
    Part.LineSegment(Vector(1630.5, 824, 0), Vector(1630.5, 786, 0)),  # 14
    Part.LineSegment(Vector(1630.5, 786, 0), Vector(1592.5, 786, 0)),  # 15
    Part.LineSegment(Vector(1631.5, -785, 0), Vector(1591.5, -785, 0)),  # 16
    Part.LineSegment(Vector(1591.5, -785, 0), Vector(1591.5, -825, 0)),  # 17
    Part.LineSegment(Vector(1591.5, -825, 0), Vector(1631.5, -825, 0)),  # 18
    Part.LineSegment(Vector(1631.5, -825, 0), Vector(1631.5, -785, 0)),  # 19
    Part.LineSegment(Vector(1592.5, -824, 0), Vector(1592.5, -786, 0)),  # 20
    Part.LineSegment(Vector(1592.5, -786, 0), Vector(1630.5, -786, 0)),  # 21
    Part.LineSegment(Vector(1630.5, -786, 0), Vector(1630.5, -824, 0)),  # 22
    Part.LineSegment(Vector(1630.5, -824, 0), Vector(1592.5, -824, 0)),  # 23
], False)
sketch6.addConstraint([
    Sketcher.Constraint("Coincident", 0, 2, 1, 1),
    Sketcher.Constraint("Coincident", 1, 2, 2, 1),
    Sketcher.Constraint("Coincident", 2, 2, 3, 1),
    Sketcher.Constraint("Coincident", 3, 2, 0, 1),
    Sketcher.Constraint("Coincident", 4, 2, 5, 1),
    Sketcher.Constraint("Coincident", 5, 2, 6, 1),
    Sketcher.Constraint("Coincident", 6, 2, 7, 1),
    Sketcher.Constraint("Coincident", 7, 2, 4, 1),
    Sketcher.Constraint("Coincident", 8, 2, 9, 1),
    Sketcher.Constraint("Coincident", 9, 2, 10, 1),
    Sketcher.Constraint("Coincident", 10, 2, 11, 1),
    Sketcher.Constraint("Coincident", 11, 2, 8, 1),
    Sketcher.Constraint("Coincident", 12, 2, 13, 1),
    Sketcher.Constraint("Coincident", 13, 2, 14, 1),
    Sketcher.Constraint("Coincident", 14, 2, 15, 1),
    Sketcher.Constraint("Coincident", 15, 2, 12, 1),
    Sketcher.Constraint("Coincident", 16, 2, 17, 1),
    Sketcher.Constraint("Coincident", 17, 2, 18, 1),
    Sketcher.Constraint("Coincident", 18, 2, 19, 1),
    Sketcher.Constraint("Coincident", 19, 2, 16, 1),
    Sketcher.Constraint("Coincident", 20, 2, 21, 1),
    Sketcher.Constraint("Coincident", 21, 2, 22, 1),
    Sketcher.Constraint("Coincident", 22, 2, 23, 1),
    Sketcher.Constraint("Coincident", 23, 2, 20, 1),
    Sketcher.Constraint("Horizontal", 0),
    Sketcher.Constraint("Vertical", 1),
    Sketcher.Constraint("Horizontal", 2),
    Sketcher.Constraint("Vertical", 3),
    Sketcher.Constraint("Vertical", 4),
    Sketcher.Constraint("Horizontal", 5),
    Sketcher.Constraint("Vertical", 6),
    Sketcher.Constraint("Horizontal", 7),
    Sketcher.Constraint("Horizontal", 8),
    Sketcher.Constraint("Vertical", 9),
    Sketcher.Constraint("Horizontal", 10),
    Sketcher.Constraint("Vertical", 11),
    Sketcher.Constraint("Vertical", 12),
    Sketcher.Constraint("Horizontal", 13),
    Sketcher.Constraint("Vertical", 14),
    Sketcher.Constraint("Horizontal", 15),
    Sketcher.Constraint("Horizontal", 16),
    Sketcher.Constraint("Vertical", 17),
    Sketcher.Constraint("Horizontal", 18),
    Sketcher.Constraint("Vertical", 19),
    Sketcher.Constraint("Vertical", 20),
    Sketcher.Constraint("Horizontal", 21),
    Sketcher.Constraint("Vertical", 22),
    Sketcher.Constraint("Horizontal", 23),
    Sketcher.Constraint("Symmetric", 9, 2, 16, 2, -1),
    Sketcher.Constraint("Symmetric", 11, 2, 18, 2, -1),
    Sketcher.Constraint("Symmetric", 15, 2, 20, 2, -1),
    Sketcher.Constraint("Symmetric", 13, 2, 22, 2, -1),
    Sketcher.Constraint("Vertical", 1, 2, 8, 2),
    Sketcher.Constraint("Vertical", 3, 2, 10, 2),
    Sketcher.Constraint("Vertical", 7, 2, 12, 2),
    Sketcher.Constraint("Vertical", 6, 2, 13, 2),
    Sketcher.Constraint("Equal", 18, 1),
    Sketcher.Constraint("Equal", 23, 4),
    Sketcher.Constraint("Equal", 3, 9),
    Sketcher.Constraint("Equal", 6, 12),
    Sketcher.Constraint("DistanceX", 0, 2, 0, 1, Q("40 mm")),
    Sketcher.Constraint("DistanceX", 5, 1, 5, 2, Q("38 mm")),
    Sketcher.Constraint("DistanceY", -1, 1, 0, 2, Q("20 mm")),
    Sketcher.Constraint("DistanceY", -1, 1, 4, 2, Q("19 mm")),
    Sketcher.Constraint("DistanceY", -1, 1, 8, 2, Q("825 mm")),
    Sketcher.Constraint("DistanceY", -1, 1, 12, 2, Q("824 mm")),
    Sketcher.Constraint("DistanceX", 0, 2, 4, 2, Q("1 mm")),
    Sketcher.Constraint("DistanceX", -1, 1, 0, 2, Q("1591.5 mm")),
])
sketch6.setExpression("Constraints[60]", "Params.sketch6_width")
sketch6.setExpression("Constraints[61]", "Params.sketch6_width2")
pad6 = doc.addObject("PartDesign::Pad", "Pad005")
body.addObject(pad6)
pad6.Profile = sketch6
pad6.setExpression("Length", "Params.pad6_length")

# Sketch on YZ plane
sketch7 = doc.addObject("Sketcher::SketchObject", "Sketch006")
body.addObject(sketch7)
sketch7.AttachmentSupport = (doc.YZ_Plane, [""])
sketch7.MapMode = "FlatFace"
sketch7.AttachmentOffset = App.Placement(Vector(0, 0, 275), App.Rotation())
sketch7.addGeometry([
    Part.Circle(Vector(1119, 805, 0), Vector(0, 0, 1), 6),  # 0
    Part.Circle(Vector(499, 805, 0), Vector(0, 0, 1), 6),  # 1
    Part.Circle(Vector(1119, 0, 0), Vector(0, 0, 1), 6),  # 2
    Part.Circle(Vector(499, 0, 0), Vector(0, 0, 1), 6),  # 3
    Part.Circle(Vector(499, -805, 0), Vector(0, 0, 1), 6),  # 4
    Part.Circle(Vector(1119, -805, 0), Vector(0, 0, 1), 6),  # 5
], False)
sketch7.addConstraint([
    Sketcher.Constraint("Equal", 0, 1),
    Sketcher.Constraint("Equal", 1, 2),
    Sketcher.Constraint("Equal", 2, 3),
    Sketcher.Constraint("Equal", 3, 4),
    Sketcher.Constraint("Equal", 4, 5),
    Sketcher.Constraint("Symmetric", 1, 3, 4, 3, -1),
    Sketcher.Constraint("Symmetric", 0, 3, 5, 3, -1),
    Sketcher.Constraint("PointOnObject", 2, 3, -1),
    Sketcher.Constraint("PointOnObject", 3, 3, -1),
    Sketcher.Constraint("Horizontal", 0, 3, 1, 3),
    Sketcher.Constraint("Vertical", 0, 3, 2, 3),
    Sketcher.Constraint("Vertical", 1, 3, 3, 3),
    Sketcher.Constraint("Diameter", 0, Q("12 mm")),
    Sketcher.Constraint("DistanceX", -1, 1, 0, 3, Q("1119 mm")),
    Sketcher.Constraint("DistanceY", -1, 1, 0, 3, Q("805 mm")),
    Sketcher.Constraint("DistanceX", -1, 1, 1, 3, Q("499 mm")),
])
sketch7.setExpression("Constraints[12]", "Params.sketch7_diameter")
pad7 = doc.addObject("PartDesign::Pad", "Pad006")
body.addObject(pad7)
pad7.Profile = sketch7
pad7.setExpression("Length", "Params.pad7_length")
pad7.Reversed = True

# Sketch on XY plane
sketch8 = doc.addObject("Sketcher::SketchObject", "Sketch007")
body.addObject(sketch8)
sketch8.AttachmentSupport = (doc.XY_Plane, [""])
sketch8.MapMode = "FlatFace"
sketch8.AttachmentOffset = App.Placement(Vector(0, 0, 825), App.Rotation())
sketch8.addGeometry([
    Part.LineSegment(Vector(-315, 1631.5, 0), Vector(-315, 1591.5, 0)),  # 0
    Part.LineSegment(Vector(-315, 1591.5, 0), Vector(-275, 1591.5, 0)),  # 1
    Part.LineSegment(Vector(-275, 1591.5, 0), Vector(-275, 1631.5, 0)),  # 2
    Part.LineSegment(Vector(-275, 1631.5, 0), Vector(-315, 1631.5, 0)),  # 3
    Part.LineSegment(Vector(275, 1631.5, 0), Vector(275, 1591.5, 0)),  # 4
    Part.LineSegment(Vector(275, 1591.5, 0), Vector(315, 1591.5, 0)),  # 5
    Part.LineSegment(Vector(315, 1591.5, 0), Vector(315, 1631.5, 0)),  # 6
    Part.LineSegment(Vector(315, 1631.5, 0), Vector(275, 1631.5, 0)),  # 7
    Part.LineSegment(Vector(-315, 40, 0), Vector(-315, 0, 0)),  # 8
    Part.LineSegment(Vector(-315, 0, 0), Vector(-275, 0, 0)),  # 9
    Part.LineSegment(Vector(-275, 0, 0), Vector(-275, 40, 0)),  # 10
    Part.LineSegment(Vector(-275, 40, 0), Vector(-315, 40, 0)),  # 11
    Part.LineSegment(Vector(275, 40, 0), Vector(275, 0, 0)),  # 12
    Part.LineSegment(Vector(275, 0, 0), Vector(315, 0, 0)),  # 13
    Part.LineSegment(Vector(315, 0, 0), Vector(315, 40, 0)),  # 14
    Part.LineSegment(Vector(315, 40, 0), Vector(275, 40, 0)),  # 15
], False)
sketch8.addConstraint([
    Sketcher.Constraint("Coincident", 0, 2, 1, 1),
    Sketcher.Constraint("Coincident", 1, 2, 2, 1),
    Sketcher.Constraint("Coincident", 2, 2, 3, 1),
    Sketcher.Constraint("Coincident", 3, 2, 0, 1),
    Sketcher.Constraint("Coincident", 4, 2, 5, 1),
    Sketcher.Constraint("Coincident", 5, 2, 6, 1),
    Sketcher.Constraint("Coincident", 6, 2, 7, 1),
    Sketcher.Constraint("Coincident", 7, 2, 4, 1),
    Sketcher.Constraint("Coincident", 8, 2, 9, 1),
    Sketcher.Constraint("Coincident", 9, 2, 10, 1),
    Sketcher.Constraint("Coincident", 10, 2, 11, 1),
    Sketcher.Constraint("Coincident", 11, 2, 8, 1),
    Sketcher.Constraint("Coincident", 12, 2, 13, 1),
    Sketcher.Constraint("Coincident", 13, 2, 14, 1),
    Sketcher.Constraint("Coincident", 14, 2, 15, 1),
    Sketcher.Constraint("Coincident", 15, 2, 12, 1),
    Sketcher.Constraint("Vertical", 0),
    Sketcher.Constraint("Horizontal", 1),
    Sketcher.Constraint("Vertical", 2),
    Sketcher.Constraint("Horizontal", 3),
    Sketcher.Constraint("Vertical", 4),
    Sketcher.Constraint("Horizontal", 5),
    Sketcher.Constraint("Vertical", 6),
    Sketcher.Constraint("Horizontal", 7),
    Sketcher.Constraint("Vertical", 8),
    Sketcher.Constraint("Horizontal", 9),
    Sketcher.Constraint("Vertical", 10),
    Sketcher.Constraint("Horizontal", 11),
    Sketcher.Constraint("Vertical", 12),
    Sketcher.Constraint("Horizontal", 13),
    Sketcher.Constraint("Vertical", 14),
    Sketcher.Constraint("Horizontal", 15),
    Sketcher.Constraint("Symmetric", 9, 2, 12, 2, -1, 1),
    Sketcher.Constraint("Symmetric", 1, 2, 4, 2, -2),
    Sketcher.Constraint("Symmetric", 3, 2, 6, 2, -2),
    Sketcher.Constraint("Symmetric", 8, 2, 13, 2, -2),
    Sketcher.Constraint("Horizontal", 11, 2, 14, 2),
    Sketcher.Constraint("Vertical", 3, 2, 8, 2),
    Sketcher.Constraint("Vertical", 2, 2, 9, 2),
    Sketcher.Constraint("Equal", 15, 0),
    Sketcher.Constraint("Equal", 6, 8),
    Sketcher.Constraint("DistanceX", 1, 1, 1, 2, Q("40 mm")),
    Sketcher.Constraint("DistanceX", 0, 2, -1, 1, Q("315 mm")),
    Sketcher.Constraint("DistanceY", -1, 1, 0, 2, Q("1591.5 mm")),
])
sketch8.setExpression("Constraints[41]", "Params.sketch8_width")
pad8 = doc.addObject("PartDesign::Pad", "Pad007")
body.addObject(pad8)
pad8.Profile = sketch8
pad8.setExpression("Length", "Params.pad8_length")
pad8.Reversed = True

# Sketch on XY plane
sketch9 = doc.addObject("Sketcher::SketchObject", "Sketch008")
body.addObject(sketch9)
sketch9.AttachmentSupport = (doc.XY_Plane, [""])
sketch9.MapMode = "FlatFace"
sketch9.AttachmentOffset = App.Placement(Vector(0, 0, -825), App.Rotation())
sketch9.addGeometry([
    Part.LineSegment(Vector(315, 1631.5, 0), Vector(315, 1591.5, 0)),  # 0
    Part.LineSegment(Vector(315, 1591.5, 0), Vector(275, 1591.5, 0)),  # 1
    Part.LineSegment(Vector(275, 1591.5, 0), Vector(275, 1631.5, 0)),  # 2
    Part.LineSegment(Vector(275, 1631.5, 0), Vector(315, 1631.5, 0)),  # 3
    Part.LineSegment(Vector(-275, 1631.5, 0), Vector(-275, 1591.5, 0)),  # 4
    Part.LineSegment(Vector(-275, 1591.5, 0), Vector(-315, 1591.5, 0)),  # 5
    Part.LineSegment(Vector(-315, 1591.5, 0), Vector(-315, 1631.5, 0)),  # 6
    Part.LineSegment(Vector(-315, 1631.5, 0), Vector(-275, 1631.5, 0)),  # 7
    Part.LineSegment(Vector(-275, 40, 0), Vector(-275, 0, 0)),  # 8
    Part.LineSegment(Vector(-275, 0, 0), Vector(-315, 0, 0)),  # 9
    Part.LineSegment(Vector(-315, 0, 0), Vector(-315, 40, 0)),  # 10
    Part.LineSegment(Vector(-315, 40, 0), Vector(-275, 40, 0)),  # 11
    Part.LineSegment(Vector(315, 40, 0), Vector(315, 0, 0)),  # 12
    Part.LineSegment(Vector(315, 0, 0), Vector(275, 0, 0)),  # 13
    Part.LineSegment(Vector(275, 0, 0), Vector(275, 40, 0)),  # 14
    Part.LineSegment(Vector(275, 40, 0), Vector(315, 40, 0)),  # 15
], False)
sketch9.addConstraint([
    Sketcher.Constraint("Coincident", 0, 2, 1, 1),
    Sketcher.Constraint("Coincident", 1, 2, 2, 1),
    Sketcher.Constraint("Coincident", 2, 2, 3, 1),
    Sketcher.Constraint("Coincident", 3, 2, 0, 1),
    Sketcher.Constraint("Coincident", 4, 2, 5, 1),
    Sketcher.Constraint("Coincident", 5, 2, 6, 1),
    Sketcher.Constraint("Coincident", 6, 2, 7, 1),
    Sketcher.Constraint("Coincident", 7, 2, 4, 1),
    Sketcher.Constraint("Coincident", 8, 2, 9, 1),
    Sketcher.Constraint("Coincident", 9, 2, 10, 1),
    Sketcher.Constraint("Coincident", 10, 2, 11, 1),
    Sketcher.Constraint("Coincident", 11, 2, 8, 1),
    Sketcher.Constraint("Coincident", 12, 2, 13, 1),
    Sketcher.Constraint("Coincident", 13, 2, 14, 1),
    Sketcher.Constraint("Coincident", 14, 2, 15, 1),
    Sketcher.Constraint("Coincident", 15, 2, 12, 1),
    Sketcher.Constraint("Vertical", 0),
    Sketcher.Constraint("Horizontal", 1),
    Sketcher.Constraint("Vertical", 2),
    Sketcher.Constraint("Horizontal", 3),
    Sketcher.Constraint("Vertical", 4),
    Sketcher.Constraint("Horizontal", 5),
    Sketcher.Constraint("Vertical", 6),
    Sketcher.Constraint("Horizontal", 7),
    Sketcher.Constraint("Vertical", 8),
    Sketcher.Constraint("Horizontal", 9),
    Sketcher.Constraint("Vertical", 10),
    Sketcher.Constraint("Horizontal", 11),
    Sketcher.Constraint("Vertical", 12),
    Sketcher.Constraint("Horizontal", 13),
    Sketcher.Constraint("Vertical", 14),
    Sketcher.Constraint("Horizontal", 15),
    Sketcher.Constraint("Symmetric", 9, 2, 12, 2, -1, 1),
    Sketcher.Constraint("Symmetric", 1, 2, 4, 2, -2),
    Sketcher.Constraint("Symmetric", 3, 2, 6, 2, -2),
    Sketcher.Constraint("Symmetric", 8, 2, 13, 2, -2),
    Sketcher.Constraint("Horizontal", 11, 2, 14, 2),
    Sketcher.Constraint("Vertical", 7, 2, 8, 2),
    Sketcher.Constraint("Vertical", 6, 2, 9, 2),
    Sketcher.Constraint("Equal", 15, 0),
    Sketcher.Constraint("Equal", 6, 8),
    Sketcher.Constraint("DistanceX", 1, 2, 1, 1, Q("40 mm")),
    Sketcher.Constraint("DistanceX", -1, 1, 0, 2, Q("315 mm")),
    Sketcher.Constraint("DistanceY", -1, 1, 0, 2, Q("1591.5 mm")),
])
sketch9.setExpression("Constraints[41]", "Params.sketch9_width")
pad9 = doc.addObject("PartDesign::Pad", "Pad008")
body.addObject(pad9)
pad9.Profile = sketch9
pad9.setExpression("Length", "Params.pad9_length")

doc.recompute()
